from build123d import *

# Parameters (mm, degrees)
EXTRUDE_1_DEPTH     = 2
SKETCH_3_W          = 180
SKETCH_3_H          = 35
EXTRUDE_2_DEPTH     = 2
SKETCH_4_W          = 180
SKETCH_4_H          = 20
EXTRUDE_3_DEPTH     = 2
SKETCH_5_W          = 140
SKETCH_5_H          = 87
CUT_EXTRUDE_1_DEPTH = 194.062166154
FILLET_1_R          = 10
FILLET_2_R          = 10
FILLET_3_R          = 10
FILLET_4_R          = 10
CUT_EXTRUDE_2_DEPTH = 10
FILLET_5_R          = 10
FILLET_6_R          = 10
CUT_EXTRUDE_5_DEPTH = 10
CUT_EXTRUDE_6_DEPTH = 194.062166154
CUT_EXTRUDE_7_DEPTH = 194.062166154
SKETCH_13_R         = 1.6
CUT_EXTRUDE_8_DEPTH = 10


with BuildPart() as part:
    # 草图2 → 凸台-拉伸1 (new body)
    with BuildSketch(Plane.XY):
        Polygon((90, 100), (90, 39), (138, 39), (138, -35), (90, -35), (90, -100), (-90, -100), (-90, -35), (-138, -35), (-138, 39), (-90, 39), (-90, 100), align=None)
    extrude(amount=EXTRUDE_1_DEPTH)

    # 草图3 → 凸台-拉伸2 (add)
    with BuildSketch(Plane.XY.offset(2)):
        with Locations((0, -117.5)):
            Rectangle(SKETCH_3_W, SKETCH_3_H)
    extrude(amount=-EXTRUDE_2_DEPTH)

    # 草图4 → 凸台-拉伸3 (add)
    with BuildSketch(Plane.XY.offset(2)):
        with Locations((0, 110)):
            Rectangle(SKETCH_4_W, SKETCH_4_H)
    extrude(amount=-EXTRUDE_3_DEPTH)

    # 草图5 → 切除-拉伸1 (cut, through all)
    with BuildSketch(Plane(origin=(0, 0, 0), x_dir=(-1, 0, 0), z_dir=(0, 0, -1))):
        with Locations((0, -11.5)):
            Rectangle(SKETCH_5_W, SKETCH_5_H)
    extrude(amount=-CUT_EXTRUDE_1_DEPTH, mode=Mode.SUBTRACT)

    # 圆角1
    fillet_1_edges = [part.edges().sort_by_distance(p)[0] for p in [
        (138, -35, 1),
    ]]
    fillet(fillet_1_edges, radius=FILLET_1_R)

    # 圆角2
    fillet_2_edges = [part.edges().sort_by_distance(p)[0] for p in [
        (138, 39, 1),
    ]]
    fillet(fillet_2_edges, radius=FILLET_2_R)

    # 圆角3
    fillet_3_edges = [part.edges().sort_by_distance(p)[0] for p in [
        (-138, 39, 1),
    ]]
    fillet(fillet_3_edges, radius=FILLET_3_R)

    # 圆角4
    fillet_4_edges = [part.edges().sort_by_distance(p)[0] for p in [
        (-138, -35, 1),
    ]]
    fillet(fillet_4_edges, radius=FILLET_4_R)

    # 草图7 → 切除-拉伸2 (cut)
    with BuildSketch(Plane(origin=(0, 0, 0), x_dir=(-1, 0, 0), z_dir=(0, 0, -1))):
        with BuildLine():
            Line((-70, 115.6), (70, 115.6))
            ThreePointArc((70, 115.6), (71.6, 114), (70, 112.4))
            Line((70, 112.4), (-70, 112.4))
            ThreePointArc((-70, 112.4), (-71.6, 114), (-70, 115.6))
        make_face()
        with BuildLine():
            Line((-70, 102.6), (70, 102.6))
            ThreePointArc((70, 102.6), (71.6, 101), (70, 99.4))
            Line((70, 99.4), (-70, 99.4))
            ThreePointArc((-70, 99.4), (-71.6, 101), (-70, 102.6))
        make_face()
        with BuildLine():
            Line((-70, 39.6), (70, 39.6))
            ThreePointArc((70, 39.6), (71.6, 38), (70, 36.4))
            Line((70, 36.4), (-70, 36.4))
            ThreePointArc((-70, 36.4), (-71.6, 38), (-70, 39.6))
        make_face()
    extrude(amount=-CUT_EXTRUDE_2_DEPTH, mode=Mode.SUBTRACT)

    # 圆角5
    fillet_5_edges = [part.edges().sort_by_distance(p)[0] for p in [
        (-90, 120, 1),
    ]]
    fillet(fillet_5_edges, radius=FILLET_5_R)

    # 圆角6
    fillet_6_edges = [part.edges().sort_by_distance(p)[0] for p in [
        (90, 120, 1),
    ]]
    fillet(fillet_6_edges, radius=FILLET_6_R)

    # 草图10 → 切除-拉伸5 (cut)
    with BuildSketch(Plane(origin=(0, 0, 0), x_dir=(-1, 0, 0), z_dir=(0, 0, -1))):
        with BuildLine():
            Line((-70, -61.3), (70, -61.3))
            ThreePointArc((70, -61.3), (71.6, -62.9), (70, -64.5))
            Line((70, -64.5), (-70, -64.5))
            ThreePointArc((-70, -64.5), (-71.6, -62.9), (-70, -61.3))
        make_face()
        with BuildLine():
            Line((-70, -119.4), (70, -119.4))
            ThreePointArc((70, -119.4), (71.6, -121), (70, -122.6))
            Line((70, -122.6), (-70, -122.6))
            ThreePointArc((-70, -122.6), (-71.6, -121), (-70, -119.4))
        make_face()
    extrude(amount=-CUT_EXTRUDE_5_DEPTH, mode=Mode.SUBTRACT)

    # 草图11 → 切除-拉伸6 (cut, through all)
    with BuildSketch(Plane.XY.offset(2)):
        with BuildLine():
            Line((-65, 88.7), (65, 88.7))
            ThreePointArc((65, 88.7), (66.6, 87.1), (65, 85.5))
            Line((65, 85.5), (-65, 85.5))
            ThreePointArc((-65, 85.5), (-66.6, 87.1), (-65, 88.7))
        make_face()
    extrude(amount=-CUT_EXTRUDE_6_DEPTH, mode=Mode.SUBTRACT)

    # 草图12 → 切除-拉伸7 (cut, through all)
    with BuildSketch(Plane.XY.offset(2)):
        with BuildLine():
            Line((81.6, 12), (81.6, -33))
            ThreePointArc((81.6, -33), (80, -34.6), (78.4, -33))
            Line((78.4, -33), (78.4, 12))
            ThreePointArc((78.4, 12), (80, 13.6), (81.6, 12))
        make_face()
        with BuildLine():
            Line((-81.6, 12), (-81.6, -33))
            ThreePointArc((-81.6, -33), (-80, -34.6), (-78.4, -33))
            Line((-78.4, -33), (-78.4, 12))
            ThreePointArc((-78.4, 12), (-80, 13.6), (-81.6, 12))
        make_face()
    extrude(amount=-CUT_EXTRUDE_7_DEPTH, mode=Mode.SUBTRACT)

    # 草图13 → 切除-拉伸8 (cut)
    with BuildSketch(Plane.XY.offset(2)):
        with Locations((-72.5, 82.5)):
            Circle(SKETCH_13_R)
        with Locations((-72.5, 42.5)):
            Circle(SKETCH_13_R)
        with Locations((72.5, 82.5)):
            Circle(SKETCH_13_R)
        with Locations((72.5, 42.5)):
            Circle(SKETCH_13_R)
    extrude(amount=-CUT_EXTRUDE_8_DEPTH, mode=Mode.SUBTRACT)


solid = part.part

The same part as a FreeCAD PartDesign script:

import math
import FreeCAD as App
import Part
import Sketcher
from FreeCAD import Vector
Q = App.Units.Quantity


def edges_at(feature, points):
    """Names of the edges that pass closest to the given points."""
    edges = feature.Shape.Edges
    near = lambda p: min(range(len(edges)), key=lambda i: edges[i].distToShape(Part.Vertex(*p))[0])
    return sorted({f"Edge{near(p) + 1}" for p in points})

doc = App.newDocument("Part")
params = doc.addObject("Spreadsheet::Sheet", "Params")
for row, (alias, value) in enumerate([
    ("sketch1_width", "180 mm"),
    ("sketch1_width2", "48 mm"),
    ("sketch1_height", "61 mm"),
    ("sketch1_height2", "74 mm"),
    ("sketch1_height3", "65 mm"),
    ("pad1_length", "2 mm"),
    ("sketch2_width", "180 mm"),
    ("sketch2_height", "35 mm"),
    ("pad2_length", "2 mm"),
    ("sketch3_width", "180 mm"),
    ("sketch3_height", "20 mm"),
    ("pad3_length", "2 mm"),
    ("sketch4_width", "140 mm"),
    ("sketch4_height", "87 mm"),
    ("fillet_radius", "10 mm"),
    ("fillet2_radius", "10 mm"),
    ("fillet3_radius", "10 mm"),
    ("fillet4_radius", "10 mm"),
    ("sketch5_radius", "1.6 mm"),
    ("sketch5_width", "140 mm"),
    ("pocket2_length", "10 mm"),
    ("fillet5_radius", "10 mm"),
    ("fillet6_radius", "10 mm"),
    ("sketch6_radius", "1.6 mm"),
    ("sketch6_width", "140 mm"),
    ("pocket3_length", "10 mm"),
    ("sketch7_radius", "1.6 mm"),
    ("sketch7_width", "130 mm"),
    ("sketch8_radius", "1.6 mm"),
    ("sketch8_height", "45 mm"),
    ("sketch9_diameter", "3.2 mm"),
    ("pocket6_length", "10 mm"),
], start=1):
    params.set(f"A{row}", alias)
    params.set(f"B{row}", "=" + value)
    params.setAlias(f"B{row}", alias)

body = doc.addObject("PartDesign::Body", "Body")

sketch1 = body.newObject("Sketcher::SketchObject", "Sketch")
sketch1.AttachmentSupport = (doc.getObject("XY_Plane"), [""])
sketch1.MapMode = "FlatFace"
sketch1.addGeometry([
    Part.LineSegment(Vector(90, 39, 0), Vector(90, 100, 0)),
    Part.LineSegment(Vector(90, 100, 0), Vector(-90, 100, 0)),
    Part.LineSegment(Vector(-90, 100, 0), Vector(-90, 39, 0)),
    Part.LineSegment(Vector(-90, 39, 0), Vector(-138, 39, 0)),
    Part.LineSegment(Vector(-138, 39, 0), Vector(-138, -35, 0)),
    Part.LineSegment(Vector(-138, -35, 0), Vector(-90, -35, 0)),
    Part.LineSegment(Vector(-90, -35, 0), Vector(-90, -100, 0)),
    Part.LineSegment(Vector(-90, -100, 0), Vector(90, -100, 0)),
    Part.LineSegment(Vector(90, -100, 0), Vector(90, -35, 0)),
    Part.LineSegment(Vector(90, -35, 0), Vector(138, -35, 0)),
    Part.LineSegment(Vector(138, -35, 0), Vector(138, 39, 0)),
    Part.LineSegment(Vector(138, 39, 0), Vector(90, 39, 0)),
], False)
sketch1.addConstraint([
    Sketcher.Constraint("Coincident", 0, 2, 1, 1),
    Sketcher.Constraint("Coincident", 1, 2, 2, 1),
    Sketcher.Constraint("Coincident", 2, 2, 3, 1),
    Sketcher.Constraint("Coincident", 3, 2, 4, 1),
    Sketcher.Constraint("Coincident", 4, 2, 5, 1),
    Sketcher.Constraint("Coincident", 5, 2, 6, 1),
    Sketcher.Constraint("Coincident", 6, 2, 7, 1),
    Sketcher.Constraint("Coincident", 7, 2, 8, 1),
    Sketcher.Constraint("Coincident", 8, 2, 9, 1),
    Sketcher.Constraint("Coincident", 9, 2, 10, 1),
    Sketcher.Constraint("Coincident", 10, 2, 11, 1),
    Sketcher.Constraint("Coincident", 11, 2, 0, 1),
    Sketcher.Constraint("Vertical", 0),
    Sketcher.Constraint("Horizontal", 1),
    Sketcher.Constraint("Vertical", 2),
    Sketcher.Constraint("Horizontal", 3),
    Sketcher.Constraint("Vertical", 4),
    Sketcher.Constraint("Horizontal", 5),
    Sketcher.Constraint("Vertical", 6),
    Sketcher.Constraint("Horizontal", 7),
    Sketcher.Constraint("Vertical", 8),
    Sketcher.Constraint("Horizontal", 9),
    Sketcher.Constraint("Vertical", 10),
    Sketcher.Constraint("Horizontal", 11),
    Sketcher.Constraint("Symmetric", 0, 2, 6, 2, -1, 1),
    Sketcher.Constraint("Symmetric", 5, 2, 8, 2, -2),
    Sketcher.Constraint("Symmetric", 3, 2, 10, 2, -2),
    Sketcher.Constraint("Vertical", 2, 2, 5, 2),
    Sketcher.Constraint("DistanceX", 1, 2, 1, 1, Q("180 mm")),
    Sketcher.Constraint("DistanceX", 3, 2, 3, 1, Q("48 mm")),
    Sketcher.Constraint("DistanceY", 0, 1, 0, 2, Q("61 mm")),
    Sketcher.Constraint("DistanceY", 4, 2, 4, 1, Q("74 mm")),
    Sketcher.Constraint("DistanceY", 6, 2, 6, 1, Q("65 mm")),
])
sketch1.setExpression("Constraints[28]", "Params.sketch1_width")
sketch1.setExpression("Constraints[29]", "Params.sketch1_width2")
sketch1.setExpression("Constraints[30]", "Params.sketch1_height")
sketch1.setExpression("Constraints[31]", "Params.sketch1_height2")
sketch1.setExpression("Constraints[32]", "Params.sketch1_height3")
pad1 = body.newObject("PartDesign::Pad", "Pad")
pad1.Profile = sketch1
pad1.setExpression("Length", "Params.pad1_length")

sketch2 = body.newObject("Sketcher::SketchObject", "Sketch001")
sketch2.AttachmentSupport = (doc.getObject("XY_Plane"), [""])
sketch2.MapMode = "FlatFace"
sketch2.AttachmentOffset = App.Placement(Vector(0, 0, 2), App.Rotation())
sketch2.addGeometry([
    Part.LineSegment(Vector(-90, -100, 0), Vector(-90, -135, 0)),
    Part.LineSegment(Vector(-90, -135, 0), Vector(90, -135, 0)),
    Part.LineSegment(Vector(90, -135, 0), Vector(90, -100, 0)),
    Part.LineSegment(Vector(90, -100, 0), Vector(-90, -100, 0)),
], False)
sketch2.addConstraint([
    Sketcher.Constraint("Coincident", 0, 2, 1, 1),
    Sketcher.Constraint("Coincident", 1, 2, 2, 1),
    Sketcher.Constraint("Coincident", 2, 2, 3, 1),
    Sketcher.Constraint("Coincident", 3, 2, 0, 1),
    Sketcher.Constraint("Vertical", 0),
    Sketcher.Constraint("Horizontal", 1),
    Sketcher.Constraint("Vertical", 2),
    Sketcher.Constraint("Horizontal", 3),
    Sketcher.Constraint("DistanceX", 1, 1, 1, 2, Q("180 mm")),
    Sketcher.Constraint("DistanceY", 0, 2, 0, 1, Q("35 mm")),
    Sketcher.Constraint("DistanceX", 0, 2, -1, 1, Q("90 mm")),
    Sketcher.Constraint("DistanceY", 0, 2, -1, 1, Q("135 mm")),
])
sketch2.setExpression("Constraints[8]", "Params.sketch2_width")
sketch2.setExpression("Constraints[9]", "Params.sketch2_height")
pad2 = body.newObject("PartDesign::Pad", "Pad001")
pad2.Profile = sketch2
pad2.setExpression("Length", "Params.pad2_length")
pad2.Reversed = True

sketch3 = body.newObject("Sketcher::SketchObject", "Sketch002")
sketch3.AttachmentSupport = (doc.getObject("XY_Plane"), [""])
sketch3.MapMode = "FlatFace"
sketch3.AttachmentOffset = App.Placement(Vector(0, 0, 2), App.Rotation())
sketch3.addGeometry([
    Part.LineSegment(Vector(-90, 120, 0), Vector(-90, 100, 0)),
    Part.LineSegment(Vector(-90, 100, 0), Vector(90, 100, 0)),
    Part.LineSegment(Vector(90, 100, 0), Vector(90, 120, 0)),
    Part.LineSegment(Vector(90, 120, 0), Vector(-90, 120, 0)),
], False)
sketch3.addConstraint([
    Sketcher.Constraint("Coincident", 0, 2, 1, 1),
    Sketcher.Constraint("Coincident", 1, 2, 2, 1),
    Sketcher.Constraint("Coincident", 2, 2, 3, 1),
    Sketcher.Constraint("Coincident", 3, 2, 0, 1),
    Sketcher.Constraint("Vertical", 0),
    Sketcher.Constraint("Horizontal", 1),
    Sketcher.Constraint("Vertical", 2),
    Sketcher.Constraint("Horizontal", 3),
    Sketcher.Constraint("DistanceX", 1, 1, 1, 2, Q("180 mm")),
    Sketcher.Constraint("DistanceY", 0, 2, 0, 1, Q("20 mm")),
    Sketcher.Constraint("DistanceX", 0, 2, -1, 1, Q("90 mm")),
    Sketcher.Constraint("DistanceY", -1, 1, 0, 2, Q("100 mm")),
])
sketch3.setExpression("Constraints[8]", "Params.sketch3_width")
sketch3.setExpression("Constraints[9]", "Params.sketch3_height")
pad3 = body.newObject("PartDesign::Pad", "Pad002")
pad3.Profile = sketch3
pad3.setExpression("Length", "Params.pad3_length")
pad3.Reversed = True

sketch4 = body.newObject("Sketcher::SketchObject", "Sketch003")
sketch4.AttachmentSupport = (doc.getObject("XY_Plane"), [""])
sketch4.MapMode = "FlatFace"
sketch4.addGeometry([
    Part.LineSegment(Vector(70, 32, 0), Vector(70, -55, 0)),
    Part.LineSegment(Vector(70, -55, 0), Vector(-70, -55, 0)),
    Part.LineSegment(Vector(-70, -55, 0), Vector(-70, 32, 0)),
    Part.LineSegment(Vector(-70, 32, 0), Vector(70, 32, 0)),
], False)
sketch4.addConstraint([
    Sketcher.Constraint("Coincident", 0, 2, 1, 1),
    Sketcher.Constraint("Coincident", 1, 2, 2, 1),
    Sketcher.Constraint("Coincident", 2, 2, 3, 1),
    Sketcher.Constraint("Coincident", 3, 2, 0, 1),
    Sketcher.Constraint("Vertical", 0),
    Sketcher.Constraint("Horizontal", 1),
    Sketcher.Constraint("Vertical", 2),
    Sketcher.Constraint("Horizontal", 3),
    Sketcher.Constraint("DistanceX", 1, 2, 1, 1, Q("140 mm")),
    Sketcher.Constraint("DistanceY", 0, 2, 0, 1, Q("87 mm")),
    Sketcher.Constraint("DistanceX", -1, 1, 0, 2, Q("70 mm")),
    Sketcher.Constraint("DistanceY", 0, 2, -1, 1, Q("55 mm")),
])
sketch4.setExpression("Constraints[8]", "Params.sketch4_width")
sketch4.setExpression("Constraints[9]", "Params.sketch4_height")
pocket1 = body.newObject("PartDesign::Pocket", "Pocket")
pocket1.Profile = sketch4
pocket1.Type = "ThroughAll"
pocket1.Reversed = True
doc.recompute()

fillet = body.newObject("PartDesign::Fillet", "Fillet")
fillet.Base = (pocket1, edges_at(pocket1, [(138, -35, 1)]))
fillet.setExpression("Radius", "Params.fillet_radius")
doc.recompute()

fillet2 = body.newObject("PartDesign::Fillet", "Fillet001")
fillet2.Base = (fillet, edges_at(fillet, [(138, 39, 1)]))
fillet2.setExpression("Radius", "Params.fillet2_radius")
doc.recompute()

fillet3 = body.newObject("PartDesign::Fillet", "Fillet002")
fillet3.Base = (fillet2, edges_at(fillet2, [(-138, 39, 1)]))
fillet3.setExpression("Radius", "Params.fillet3_radius")
doc.recompute()

fillet4 = body.newObject("PartDesign::Fillet", "Fillet003")
fillet4.Base = (fillet3, edges_at(fillet3, [(-138, -35, 1)]))
fillet4.setExpression("Radius", "Params.fillet4_radius")

sketch5 = body.newObject("Sketcher::SketchObject", "Sketch004")
sketch5.AttachmentSupport = (doc.getObject("XY_Plane"), [""])
sketch5.MapMode = "FlatFace"
sketch5.addGeometry([
    Part.LineSegment(Vector(-70, 115.6, 0), Vector(70, 115.6, 0)),
    Part.ArcOfCircle(Part.Circle(Vector(70, 114, 0), Vector(0, 0, 1), 1.6), math.radians(-90), math.radians(90)),
    Part.LineSegment(Vector(70, 112.4, 0), Vector(-70, 112.4, 0)),
    Part.ArcOfCircle(Part.Circle(Vector(-70, 114, 0), Vector(0, 0, 1), 1.6), math.radians(90), math.radians(270)),
    Part.LineSegment(Vector(-70, 102.6, 0), Vector(70, 102.6, 0)),
    Part.ArcOfCircle(Part.Circle(Vector(70, 101, 0), Vector(0, 0, 1), 1.6), math.radians(-90), math.radians(90)),
    Part.LineSegment(Vector(70, 99.4, 0), Vector(-70, 99.4, 0)),
    Part.ArcOfCircle(Part.Circle(Vector(-70, 101, 0), Vector(0, 0, 1), 1.6), math.radians(90), math.radians(270)),
    Part.LineSegment(Vector(-70, 39.6, 0), Vector(70, 39.6, 0)),
    Part.ArcOfCircle(Part.Circle(Vector(70, 38, 0), Vector(0, 0, 1), 1.6), math.radians(-90), math.radians(90)),
    Part.LineSegment(Vector(70, 36.4, 0), Vector(-70, 36.4, 0)),
    Part.ArcOfCircle(Part.Circle(Vector(-70, 38, 0), Vector(0, 0, 1), 1.6), math.radians(90), math.radians(270)),
], False)
sketch5.addConstraint([
    Sketcher.Constraint("Tangent", 0, 2, 1, 2),
    Sketcher.Constraint("Tangent", 1, 1, 2, 1),
    Sketcher.Constraint("Tangent", 2, 2, 3, 2),
    Sketcher.Constraint("Tangent", 3, 1, 0, 1),
    Sketcher.Constraint("Tangent", 4, 2, 5, 2),
    Sketcher.Constraint("Tangent", 5, 1, 6, 1),
    Sketcher.Constraint("Tangent", 6, 2, 7, 2),
    Sketcher.Constraint("Tangent", 7, 1, 4, 1),
    Sketcher.Constraint("Tangent", 8, 2, 9, 2),
    Sketcher.Constraint("Tangent", 9, 1, 10, 1),
    Sketcher.Constraint("Tangent", 10, 2, 11, 2),
    Sketcher.Constraint("Tangent", 11, 1, 8, 1),
    Sketcher.Constraint("Horizontal", 0),
    Sketcher.Constraint("Horizontal", 2),
    Sketcher.Constraint("Horizontal", 4),
    Sketcher.Constraint("Horizontal", 6),
    Sketcher.Constraint("Horizontal", 8),
    Sketcher.Constraint("Horizontal", 10),
    Sketcher.Constraint("Equal", 3, 5),
    Sketcher.Constraint("Equal", 7, 9),
    Sketcher.Constraint("Vertical", 1, 3, 5, 3),
    Sketcher.Constraint("Vertical", 3, 3, 7, 3),
    Sketcher.Constraint("Vertical", 5, 3, 9, 3),
    Sketcher.Constraint("Vertical", 7, 3, 11, 3),
    Sketcher.Constraint("Radius", 1, Q("1.6 mm")),
    Sketcher.Constraint("DistanceX", 0, 1, 0, 2, Q("140 mm")),
    Sketcher.Constraint("DistanceX", -1, 1, 1, 3, Q("70 mm")),
    Sketcher.Constraint("DistanceY", -1, 1, 1, 3, Q("114 mm")),
    Sketcher.Constraint("DistanceY", -1, 1, 5, 3, Q("101 mm")),
    Sketcher.Constraint("DistanceY", -1, 1, 9, 3, Q("38 mm")),
])
sketch5.setExpression("Constraints[24]", "Params.sketch5_radius")
sketch5.setExpression("Constraints[25]", "Params.sketch5_width")
pocket2 = body.newObject("PartDesign::Pocket", "Pocket001")
pocket2.Profile = sketch5
pocket2.setExpression("Length", "Params.pocket2_length")
pocket2.Reversed = True
doc.recompute()

fillet5 = body.newObject("PartDesign::Fillet", "Fillet004")
fillet5.Base = (pocket2, edges_at(pocket2, [(-90, 120, 1)]))
fillet5.setExpression("Radius", "Params.fillet5_radius")
doc.recompute()

fillet6 = body.newObject("PartDesign::Fillet", "Fillet005")
fillet6.Base = (fillet5, edges_at(fillet5, [(90, 120, 1)]))
fillet6.setExpression("Radius", "Params.fillet6_radius")

sketch6 = body.newObject("Sketcher::SketchObject", "Sketch005")
sketch6.AttachmentSupport = (doc.getObject("XY_Plane"), [""])
sketch6.MapMode = "FlatFace"
sketch6.addGeometry([
    Part.LineSegment(Vector(-70, -61.3, 0), Vector(70, -61.3, 0)),
    Part.ArcOfCircle(Part.Circle(Vector(70, -62.9, 0), Vector(0, 0, 1), 1.6), math.radians(-90), math.radians(90)),
    Part.LineSegment(Vector(70, -64.5, 0), Vector(-70, -64.5, 0)),
    Part.ArcOfCircle(Part.Circle(Vector(-70, -62.9, 0), Vector(0, 0, 1), 1.6), math.radians(90), math.radians(270)),
    Part.LineSegment(Vector(-70, -119.4, 0), Vector(70, -119.4, 0)),
    Part.ArcOfCircle(Part.Circle(Vector(70, -121, 0), Vector(0, 0, 1), 1.6), math.radians(-90), math.radians(90)),
    Part.LineSegment(Vector(70, -122.6, 0), Vector(-70, -122.6, 0)),
    Part.ArcOfCircle(Part.Circle(Vector(-70, -121, 0), Vector(0, 0, 1), 1.6), math.radians(90), math.radians(270)),
], False)
sketch6.addConstraint([
    Sketcher.Constraint("Tangent", 0, 2, 1, 2),
    Sketcher.Constraint("Tangent", 1, 1, 2, 1),
    Sketcher.Constraint("Tangent", 2, 2, 3, 2),
    Sketcher.Constraint("Tangent", 3, 1, 0, 1),
    Sketcher.Constraint("Tangent", 4, 2, 5, 2),
    Sketcher.Constraint("Tangent", 5, 1, 6, 1),
    Sketcher.Constraint("Tangent", 6, 2, 7, 2),
    Sketcher.Constraint("Tangent", 7, 1, 4, 1),
    Sketcher.Constraint("Horizontal", 0),
    Sketcher.Constraint("Horizontal", 2),
    Sketcher.Constraint("Horizontal", 4),
    Sketcher.Constraint("Horizontal", 6),
    Sketcher.Constraint("Equal", 3, 5),
    Sketcher.Constraint("Vertical", 1, 3, 5, 3),
    Sketcher.Constraint("Vertical", 3, 3, 7, 3),
    Sketcher.Constraint("Radius", 1, Q("1.6 mm")),
    Sketcher.Constraint("DistanceX", 0, 1, 0, 2, Q("140 mm")),
    Sketcher.Constraint("DistanceX", -1, 1, 1, 3, Q("70 mm")),
    Sketcher.Constraint("DistanceY", 5, 3, -1, 1, Q("121 mm")),
    Sketcher.Constraint("DistanceY", 1, 3, -1, 1, Q("62.9 mm")),
])
sketch6.setExpression("Constraints[15]", "Params.sketch6_radius")
sketch6.setExpression("Constraints[16]", "Params.sketch6_width")
pocket3 = body.newObject("PartDesign::Pocket", "Pocket002")
pocket3.Profile = sketch6
pocket3.setExpression("Length", "Params.pocket3_length")
pocket3.Reversed = True

sketch7 = body.newObject("Sketcher::SketchObject", "Sketch006")
sketch7.AttachmentSupport = (doc.getObject("XY_Plane"), [""])
sketch7.MapMode = "FlatFace"
sketch7.AttachmentOffset = App.Placement(Vector(0, 0, 2), App.Rotation())
sketch7.addGeometry([
    Part.LineSegment(Vector(65, 88.7, 0), Vector(-65, 88.7, 0)),
    Part.ArcOfCircle(Part.Circle(Vector(-65, 87.1, 0), Vector(0, 0, 1), 1.6), math.radians(90), math.radians(270)),
    Part.LineSegment(Vector(-65, 85.5, 0), Vector(65, 85.5, 0)),
    Part.ArcOfCircle(Part.Circle(Vector(65, 87.1, 0), Vector(0, 0, 1), 1.6), math.radians(-90), math.radians(90)),
], False)
sketch7.addConstraint([
    Sketcher.Constraint("Tangent", 0, 2, 1, 1),
    Sketcher.Constraint("Tangent", 1, 2, 2, 1),
    Sketcher.Constraint("Tangent", 2, 2, 3, 1),
    Sketcher.Constraint("Tangent", 3, 2, 0, 1),
    Sketcher.Constraint("Horizontal", 0),
    Sketcher.Constraint("Horizontal", 2),
    Sketcher.Constraint("Radius", 1, Q("1.6 mm")),
    Sketcher.Constraint("DistanceX", 0, 2, 0, 1, Q("130 mm")),
    Sketcher.Constraint("DistanceX", 1, 3, -1, 1, Q("65 mm")),
    Sketcher.Constraint("DistanceY", -1, 1, 1, 3, Q("87.1 mm")),
])
sketch7.setExpression("Constraints[6]", "Params.sketch7_radius")
sketch7.setExpression("Constraints[7]", "Params.sketch7_width")
pocket4 = body.newObject("PartDesign::Pocket", "Pocket003")
pocket4.Profile = sketch7
pocket4.Type = "ThroughAll"

sketch8 = body.newObject("Sketcher::SketchObject", "Sketch007")
sketch8.AttachmentSupport = (doc.getObject("XY_Plane"), [""])
sketch8.MapMode = "FlatFace"
sketch8.AttachmentOffset = App.Placement(Vector(0, 0, 2), App.Rotation())
sketch8.addGeometry([
    Part.LineSegment(Vector(81.6, -33, 0), Vector(81.6, 12, 0)),
    Part.ArcOfCircle(Part.Circle(Vector(80, 12, 0), Vector(0, 0, 1), 1.6), math.radians(0), math.radians(180)),
    Part.LineSegment(Vector(78.4, 12, 0), Vector(78.4, -33, 0)),
    Part.ArcOfCircle(Part.Circle(Vector(80, -33, 0), Vector(0, 0, 1), 1.6), math.radians(180), math.radians(360)),
    Part.LineSegment(Vector(-81.6, 12, 0), Vector(-81.6, -33, 0)),
    Part.ArcOfCircle(Part.Circle(Vector(-80, -33, 0), Vector(0, 0, 1), 1.6), math.radians(180), math.radians(360)),
    Part.LineSegment(Vector(-78.4, -33, 0), Vector(-78.4, 12, 0)),
    Part.ArcOfCircle(Part.Circle(Vector(-80, 12, 0), Vector(0, 0, 1), 1.6), math.radians(0), math.radians(180)),
], False)
sketch8.addConstraint([
    Sketcher.Constraint("Tangent", 0, 2, 1, 1),
    Sketcher.Constraint("Tangent", 1, 2, 2, 1),
    Sketcher.Constraint("Tangent", 2, 2, 3, 1),
    Sketcher.Constraint("Tangent", 3, 2, 0, 1),
    Sketcher.Constraint("Tangent", 4, 2, 5, 1),
    Sketcher.Constraint("Tangent", 5, 2, 6, 1),
    Sketcher.Constraint("Tangent", 6, 2, 7, 1),
    Sketcher.Constraint("Tangent", 7, 2, 4, 1),
    Sketcher.Constraint("Vertical", 0),
    Sketcher.Constraint("Vertical", 2),
    Sketcher.Constraint("Vertical", 4),
    Sketcher.Constraint("Vertical", 6),
    Sketcher.Constraint("Equal", 3, 5),
    Sketcher.Constraint("Symmetric", 3, 3, 5, 3, -2),
    Sketcher.Constraint("Horizontal", 1, 3, 7, 3),
    Sketcher.Constraint("Radius", 1, Q("1.6 mm")),
    Sketcher.Constraint("DistanceY", 0, 1, 0, 2, Q("45 mm")),
    Sketcher.Constraint("DistanceX", -1, 1, 1, 3, Q("80 mm")),
    Sketcher.Constraint("DistanceY", -1, 1, 1, 3, Q("12 mm")),
])
sketch8.setExpression("Constraints[15]", "Params.sketch8_radius")
sketch8.setExpression("Constraints[16]", "Params.sketch8_height")
pocket5 = body.newObject("PartDesign::Pocket", "Pocket004")
pocket5.Profile = sketch8
pocket5.Type = "ThroughAll"

sketch9 = body.newObject("Sketcher::SketchObject", "Sketch008")
sketch9.AttachmentSupport = (doc.getObject("XY_Plane"), [""])
sketch9.MapMode = "FlatFace"
sketch9.AttachmentOffset = App.Placement(Vector(0, 0, 2), App.Rotation())
sketch9.addGeometry([
    Part.Circle(Vector(-72.5, 82.5, 0), Vector(0, 0, 1), 1.6),
    Part.Circle(Vector(-72.5, 42.5, 0), Vector(0, 0, 1), 1.6),
    Part.Circle(Vector(72.5, 82.5, 0), Vector(0, 0, 1), 1.6),
    Part.Circle(Vector(72.5, 42.5, 0), Vector(0, 0, 1), 1.6),
], False)
sketch9.addConstraint([
    Sketcher.Constraint("Equal", 0, 1),
    Sketcher.Constraint("Equal", 1, 2),
    Sketcher.Constraint("Equal", 2, 3),
    Sketcher.Constraint("Symmetric", 0, 3, 2, 3, -2),
    Sketcher.Constraint("Symmetric", 1, 3, 3, 3, -2),
    Sketcher.Constraint("Vertical", 0, 3, 1, 3),
    Sketcher.Constraint("Diameter", 0, Q("3.2 mm")),
    Sketcher.Constraint("DistanceY", 1, 3, 0, 3, Q("40 mm")),
    Sketcher.Constraint("DistanceX", 0, 3, 2, 3, Q("145 mm")),
    Sketcher.Constraint("DistanceY", -1, 1, 0, 3, Q("82.5 mm")),
])
sketch9.setExpression("Constraints[6]", "Params.sketch9_diameter")
pocket6 = body.newObject("PartDesign::Pocket", "Pocket005")
pocket6.Profile = sketch9
pocket6.setExpression("Length", "Params.pocket6_length")

doc.recompute()
